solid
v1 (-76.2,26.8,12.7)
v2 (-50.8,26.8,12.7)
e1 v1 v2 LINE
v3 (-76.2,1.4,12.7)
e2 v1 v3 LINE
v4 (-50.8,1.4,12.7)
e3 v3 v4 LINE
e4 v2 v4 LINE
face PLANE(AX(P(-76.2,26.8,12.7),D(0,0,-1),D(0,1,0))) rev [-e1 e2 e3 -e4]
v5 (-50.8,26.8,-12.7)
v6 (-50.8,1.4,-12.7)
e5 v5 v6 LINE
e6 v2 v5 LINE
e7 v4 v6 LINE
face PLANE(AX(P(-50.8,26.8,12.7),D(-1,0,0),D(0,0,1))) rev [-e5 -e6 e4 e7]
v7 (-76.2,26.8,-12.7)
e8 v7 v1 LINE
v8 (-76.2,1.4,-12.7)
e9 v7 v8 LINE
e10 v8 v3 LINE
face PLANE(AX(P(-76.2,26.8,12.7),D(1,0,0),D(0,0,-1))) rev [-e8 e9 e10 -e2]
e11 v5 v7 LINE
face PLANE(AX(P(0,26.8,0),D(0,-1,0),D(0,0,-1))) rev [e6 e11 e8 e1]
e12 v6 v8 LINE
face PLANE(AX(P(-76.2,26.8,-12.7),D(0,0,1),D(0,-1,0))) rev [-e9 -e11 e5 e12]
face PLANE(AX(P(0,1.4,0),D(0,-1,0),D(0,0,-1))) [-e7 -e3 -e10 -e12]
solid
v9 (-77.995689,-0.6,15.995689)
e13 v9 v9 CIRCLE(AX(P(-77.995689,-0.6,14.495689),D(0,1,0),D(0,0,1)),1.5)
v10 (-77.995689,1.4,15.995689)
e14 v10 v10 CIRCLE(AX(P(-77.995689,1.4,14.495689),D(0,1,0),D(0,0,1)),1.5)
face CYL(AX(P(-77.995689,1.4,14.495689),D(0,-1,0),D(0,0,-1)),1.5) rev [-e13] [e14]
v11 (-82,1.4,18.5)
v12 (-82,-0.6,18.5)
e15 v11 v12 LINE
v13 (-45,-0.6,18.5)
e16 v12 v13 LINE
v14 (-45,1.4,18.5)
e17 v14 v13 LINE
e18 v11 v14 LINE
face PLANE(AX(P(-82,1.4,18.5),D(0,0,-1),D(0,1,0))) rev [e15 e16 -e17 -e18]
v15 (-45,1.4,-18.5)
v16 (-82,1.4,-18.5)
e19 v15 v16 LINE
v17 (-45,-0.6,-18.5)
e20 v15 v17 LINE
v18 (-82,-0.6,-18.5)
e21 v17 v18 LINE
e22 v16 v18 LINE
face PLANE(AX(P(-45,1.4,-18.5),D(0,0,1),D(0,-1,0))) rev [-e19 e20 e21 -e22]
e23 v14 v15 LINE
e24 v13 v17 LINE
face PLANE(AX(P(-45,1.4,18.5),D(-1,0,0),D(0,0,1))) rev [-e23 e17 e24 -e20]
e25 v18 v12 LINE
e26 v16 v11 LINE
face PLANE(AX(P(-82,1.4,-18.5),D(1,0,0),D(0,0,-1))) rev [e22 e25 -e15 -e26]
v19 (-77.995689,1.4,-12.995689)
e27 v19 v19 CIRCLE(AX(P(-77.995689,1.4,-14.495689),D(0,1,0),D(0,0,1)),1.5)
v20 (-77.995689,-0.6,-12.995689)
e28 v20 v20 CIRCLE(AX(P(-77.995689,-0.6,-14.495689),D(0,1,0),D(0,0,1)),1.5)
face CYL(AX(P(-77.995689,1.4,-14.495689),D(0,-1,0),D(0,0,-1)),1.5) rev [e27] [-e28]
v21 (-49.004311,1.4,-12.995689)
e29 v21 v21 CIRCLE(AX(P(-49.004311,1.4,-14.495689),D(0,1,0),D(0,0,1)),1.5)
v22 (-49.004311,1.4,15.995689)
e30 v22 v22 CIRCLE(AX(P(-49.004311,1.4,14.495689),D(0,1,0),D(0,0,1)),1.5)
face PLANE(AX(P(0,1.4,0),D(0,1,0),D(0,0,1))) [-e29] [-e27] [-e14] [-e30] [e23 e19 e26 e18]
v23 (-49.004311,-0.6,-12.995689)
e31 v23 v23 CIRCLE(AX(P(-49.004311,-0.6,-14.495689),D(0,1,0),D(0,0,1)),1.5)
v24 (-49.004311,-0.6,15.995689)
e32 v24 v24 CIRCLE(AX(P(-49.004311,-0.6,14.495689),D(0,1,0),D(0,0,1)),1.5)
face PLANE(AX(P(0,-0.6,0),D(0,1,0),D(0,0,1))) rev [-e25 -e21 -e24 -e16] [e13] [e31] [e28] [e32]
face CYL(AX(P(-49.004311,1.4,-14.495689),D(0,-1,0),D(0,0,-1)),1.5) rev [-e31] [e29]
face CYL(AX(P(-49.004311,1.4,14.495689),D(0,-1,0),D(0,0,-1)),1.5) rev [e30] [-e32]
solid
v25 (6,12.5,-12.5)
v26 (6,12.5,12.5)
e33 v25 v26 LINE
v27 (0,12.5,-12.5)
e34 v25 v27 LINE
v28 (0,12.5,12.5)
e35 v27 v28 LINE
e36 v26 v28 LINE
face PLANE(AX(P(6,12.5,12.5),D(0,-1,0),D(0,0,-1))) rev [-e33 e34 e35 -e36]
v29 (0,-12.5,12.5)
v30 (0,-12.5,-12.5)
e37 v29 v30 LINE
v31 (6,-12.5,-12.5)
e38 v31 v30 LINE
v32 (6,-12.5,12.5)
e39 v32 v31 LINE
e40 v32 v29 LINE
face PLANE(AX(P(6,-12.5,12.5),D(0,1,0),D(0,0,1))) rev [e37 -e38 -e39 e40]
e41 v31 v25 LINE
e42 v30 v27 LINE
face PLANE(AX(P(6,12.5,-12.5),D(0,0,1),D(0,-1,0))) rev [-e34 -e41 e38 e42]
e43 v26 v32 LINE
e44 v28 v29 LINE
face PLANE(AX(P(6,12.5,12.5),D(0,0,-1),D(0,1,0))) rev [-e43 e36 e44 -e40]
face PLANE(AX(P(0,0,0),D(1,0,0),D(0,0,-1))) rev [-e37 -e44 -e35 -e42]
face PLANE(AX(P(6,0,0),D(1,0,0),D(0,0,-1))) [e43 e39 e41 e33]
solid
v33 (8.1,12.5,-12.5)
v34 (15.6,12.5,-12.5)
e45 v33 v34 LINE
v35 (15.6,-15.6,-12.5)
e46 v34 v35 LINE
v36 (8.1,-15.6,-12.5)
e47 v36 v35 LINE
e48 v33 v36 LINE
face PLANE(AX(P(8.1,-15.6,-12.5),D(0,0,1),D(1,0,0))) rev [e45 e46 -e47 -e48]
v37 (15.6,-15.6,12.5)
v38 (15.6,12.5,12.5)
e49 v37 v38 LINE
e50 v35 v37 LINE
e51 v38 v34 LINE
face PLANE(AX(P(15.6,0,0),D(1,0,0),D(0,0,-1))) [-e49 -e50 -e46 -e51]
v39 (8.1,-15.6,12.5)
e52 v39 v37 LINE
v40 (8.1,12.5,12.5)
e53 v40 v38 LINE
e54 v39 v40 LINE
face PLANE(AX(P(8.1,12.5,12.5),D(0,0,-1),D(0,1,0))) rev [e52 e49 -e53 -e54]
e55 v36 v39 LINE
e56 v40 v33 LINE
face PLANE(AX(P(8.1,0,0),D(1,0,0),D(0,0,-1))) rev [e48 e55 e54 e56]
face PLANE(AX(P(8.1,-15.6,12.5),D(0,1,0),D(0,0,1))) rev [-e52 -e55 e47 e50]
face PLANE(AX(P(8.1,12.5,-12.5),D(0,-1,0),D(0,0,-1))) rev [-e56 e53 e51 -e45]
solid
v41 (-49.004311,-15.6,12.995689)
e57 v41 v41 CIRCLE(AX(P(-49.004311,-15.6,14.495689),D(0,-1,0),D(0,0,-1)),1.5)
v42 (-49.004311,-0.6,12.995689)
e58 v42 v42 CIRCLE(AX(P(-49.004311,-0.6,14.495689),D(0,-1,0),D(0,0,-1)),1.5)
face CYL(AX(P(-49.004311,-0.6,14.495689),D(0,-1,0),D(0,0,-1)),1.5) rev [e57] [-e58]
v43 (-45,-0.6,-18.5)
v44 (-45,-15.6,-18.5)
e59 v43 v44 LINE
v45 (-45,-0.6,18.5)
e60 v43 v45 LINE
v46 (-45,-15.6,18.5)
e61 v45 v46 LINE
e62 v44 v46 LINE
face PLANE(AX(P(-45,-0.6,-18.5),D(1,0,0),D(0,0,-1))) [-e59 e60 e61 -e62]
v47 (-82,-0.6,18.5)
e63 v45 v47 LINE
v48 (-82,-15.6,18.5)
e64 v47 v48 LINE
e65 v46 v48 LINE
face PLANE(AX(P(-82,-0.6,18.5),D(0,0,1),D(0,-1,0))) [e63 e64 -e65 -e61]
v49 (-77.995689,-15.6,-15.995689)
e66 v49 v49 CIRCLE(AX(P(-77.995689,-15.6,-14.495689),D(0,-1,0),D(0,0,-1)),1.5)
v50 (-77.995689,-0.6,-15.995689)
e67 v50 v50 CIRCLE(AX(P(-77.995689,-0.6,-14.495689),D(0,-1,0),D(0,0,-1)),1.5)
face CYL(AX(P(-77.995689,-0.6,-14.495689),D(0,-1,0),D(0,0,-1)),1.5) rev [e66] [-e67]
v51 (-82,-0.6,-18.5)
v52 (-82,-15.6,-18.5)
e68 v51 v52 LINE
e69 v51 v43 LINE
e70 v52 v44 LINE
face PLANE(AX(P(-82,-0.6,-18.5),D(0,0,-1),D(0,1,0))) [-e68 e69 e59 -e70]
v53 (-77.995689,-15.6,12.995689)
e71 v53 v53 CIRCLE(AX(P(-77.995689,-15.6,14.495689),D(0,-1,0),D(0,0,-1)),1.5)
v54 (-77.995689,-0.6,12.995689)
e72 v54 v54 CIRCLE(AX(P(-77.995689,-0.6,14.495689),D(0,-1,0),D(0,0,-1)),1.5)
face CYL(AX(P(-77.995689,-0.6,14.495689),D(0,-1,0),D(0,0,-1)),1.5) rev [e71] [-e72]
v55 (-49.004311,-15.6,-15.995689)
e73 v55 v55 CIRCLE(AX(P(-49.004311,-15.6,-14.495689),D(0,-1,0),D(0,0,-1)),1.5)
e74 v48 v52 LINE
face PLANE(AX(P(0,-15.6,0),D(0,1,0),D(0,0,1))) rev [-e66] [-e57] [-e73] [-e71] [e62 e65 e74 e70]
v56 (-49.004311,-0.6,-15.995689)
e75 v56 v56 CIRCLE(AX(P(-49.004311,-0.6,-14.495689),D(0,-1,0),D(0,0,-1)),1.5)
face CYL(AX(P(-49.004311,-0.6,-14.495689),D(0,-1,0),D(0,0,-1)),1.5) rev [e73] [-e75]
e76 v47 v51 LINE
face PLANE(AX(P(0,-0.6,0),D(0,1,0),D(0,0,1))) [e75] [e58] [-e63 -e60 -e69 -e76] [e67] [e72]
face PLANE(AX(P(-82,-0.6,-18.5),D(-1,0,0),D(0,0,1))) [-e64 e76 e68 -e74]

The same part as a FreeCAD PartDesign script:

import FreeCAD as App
import Part
import Sketcher

V = App.Vector

doc = App.newDocument("Part")
params = doc.addObject("Spreadsheet::Sheet", "Params")
for row, (alias, value) in enumerate([
    ("sketch1_width", "25 mm"),
    ("pad1_length", "6 mm"),
    ("sketch2_height", "25 mm"),
    ("sketch2_width", "28.1 mm"),
    ("pad2_length", "7.5 mm"),
    ("sketch3_diameter", "3 mm"),
    ("sketch3_width", "37 mm"),
    ("pad3_length", "15 mm"),
    ("sketch4_diameter", "3 mm"),
    ("sketch4_width", "37 mm"),
    ("pad4_length", "2 mm"),
    ("sketch5_width", "25.4 mm"),
    ("pad5_length", "25.4 mm"),
], start=1):
    params.set(f"A{row}", alias)
    params.set(f"B{row}", "=" + value)
    params.setAlias(f"B{row}", alias)

body = doc.addObject("PartDesign::Body", "Body")

# Sketch on YZ plane
sketch1 = body.newObject("Sketcher::SketchObject", "Sketch")
sketch1.AttachmentSupport = (doc.getObject("YZ_Plane"), [""])
sketch1.MapMode = "FlatFace"
sketch1.addGeometry(Part.LineSegment(V(12, 12, 0), V(-12, 12, 0)), False)
sketch1.addGeometry(Part.LineSegment(V(-12, 12, 0), V(-12, -12, 0)), False)
sketch1.addGeometry(Part.LineSegment(V(-12, -12, 0), V(12, -12, 0)), False)
sketch1.addGeometry(Part.LineSegment(V(12, -12, 0), V(12, 12, 0)), False)
sketch1.addConstraint(Sketcher.Constraint("Coincident", 0, 2, 1, 1))
sketch1.addConstraint(Sketcher.Constraint("Coincident", 1, 2, 2, 1))
sketch1.addConstraint(Sketcher.Constraint("Coincident", 2, 2, 3, 1))
sketch1.addConstraint(Sketcher.Constraint("Coincident", 3, 2, 0, 1))
sketch1.addConstraint(Sketcher.Constraint("Horizontal", 0))
sketch1.addConstraint(Sketcher.Constraint("Vertical", 1))
sketch1.addConstraint(Sketcher.Constraint("Horizontal", 2))
sketch1.addConstraint(Sketcher.Constraint("Vertical", 3))
sketch1.addConstraint(Sketcher.Constraint("Symmetric", 0, 2, 2, 2, -1, 1))
sketch1.addConstraint(Sketcher.Constraint("Equal", 2, 1))
sketch1.addConstraint(Sketcher.Constraint("DistanceX", 0, 2, 0, 1, 25.0))
sketch1.setExpression("Constraints[10]", "Params.sketch1_width")
pad1 = body.newObject("PartDesign::Pad", "Pad")
pad1.Profile = sketch1
pad1.setExpression("Length", "Params.pad1_length")
body2 = doc.addObject("PartDesign::Body", "Body001")

# Sketch on YZ plane
sketch2 = body2.newObject("Sketcher::SketchObject", "Sketch001")
sketch2.AttachmentSupport = (doc.getObject("YZ_Plane001"), [""])
sketch2.MapMode = "FlatFace"
sketch2.AttachmentOffset = App.Placement(V(0, 0, 15.6), App.Rotation())
sketch2.addGeometry(Part.LineSegment(V(12, -12, 0), V(-16, -12, 0)), False)
sketch2.addGeometry(Part.LineSegment(V(-16, -12, 0), V(-16, 12, 0)), False)
sketch2.addGeometry(Part.LineSegment(V(-16, 12, 0), V(12, 12, 0)), False)
sketch2.addGeometry(Part.LineSegment(V(12, 12, 0), V(12, -12, 0)), False)
sketch2.addConstraint(Sketcher.Constraint("Coincident", 0, 2, 1, 1))
sketch2.addConstraint(Sketcher.Constraint("Coincident", 1, 2, 2, 1))
sketch2.addConstraint(Sketcher.Constraint("Coincident", 2, 2, 3, 1))
sketch2.addConstraint(Sketcher.Constraint("Coincident", 3, 2, 0, 1))
sketch2.addConstraint(Sketcher.Constraint("Horizontal", 0))
sketch2.addConstraint(Sketcher.Constraint("Vertical", 1))
sketch2.addConstraint(Sketcher.Constraint("Horizontal", 2))
sketch2.addConstraint(Sketcher.Constraint("Vertical", 3))
sketch2.addConstraint(Sketcher.Constraint("DistanceY", 1, 1, 1, 2, 25.0))
sketch2.addConstraint(Sketcher.Constraint("DistanceX", 0, 2, 0, 1, 28.1))
sketch2.addConstraint(Sketcher.Constraint("DistanceX", 0, 2, -1, 1, 15.6))
sketch2.addConstraint(Sketcher.Constraint("DistanceY", 0, 2, -1, 1, 12.5))
sketch2.setExpression("Constraints[8]", "Params.sketch2_height")
sketch2.setExpression("Constraints[9]", "Params.sketch2_width")
pad2 = body2.newObject("PartDesign::Pad", "Pad001")
pad2.Profile = sketch2
pad2.setExpression("Length", "Params.pad2_length")
pad2.Reversed = True
body3 = doc.addObject("PartDesign::Body", "Body002")

# Sketch on XZ plane
sketch3 = body3.newObject("Sketcher::SketchObject", "Sketch002")
sketch3.AttachmentSupport = (doc.getObject("XZ_Plane002"), [""])
sketch3.MapMode = "FlatFace"
sketch3.AttachmentOffset = App.Placement(V(0, 0, 15.6), App.Rotation())
sketch3.addGeometry(Part.LineSegment(V(-82, 18.5, 0), V(-82, -18.5, 0)), False)
sketch3.addGeometry(Part.LineSegment(V(-82, -18.5, 0), V(-45, -18.5, 0)), False)
sketch3.addGeometry(Part.LineSegment(V(-45, -18.5, 0), V(-45, 18.5, 0)), False)
sketch3.addGeometry(Part.LineSegment(V(-45, 18.5, 0), V(-82, 18.5, 0)), False)
sketch3.addGeometry(Part.Circle(V(-78, -14.5, 0), V(0, 0, 1), 1.5), False)
sketch3.addGeometry(Part.Circle(V(-49, -14.5, 0), V(0, 0, 1), 1.5), False)
sketch3.addGeometry(Part.Circle(V(-78, 14.5, 0), V(0, 0, 1), 1.5), False)
sketch3.addGeometry(Part.Circle(V(-49, 14.5, 0), V(0, 0, 1), 1.5), False)
sketch3.addConstraint(Sketcher.Constraint("Coincident", 0, 2, 1, 1))
sketch3.addConstraint(Sketcher.Constraint("Coincident", 1, 2, 2, 1))
sketch3.addConstraint(Sketcher.Constraint("Coincident", 2, 2, 3, 1))
sketch3.addConstraint(Sketcher.Constraint("Coincident", 3, 2, 0, 1))
sketch3.addConstraint(Sketcher.Constraint("Vertical", 0))
sketch3.addConstraint(Sketcher.Constraint("Horizontal", 1))
sketch3.addConstraint(Sketcher.Constraint("Vertical", 2))
sketch3.addConstraint(Sketcher.Constraint("Horizontal", 3))
sketch3.addConstraint(Sketcher.Constraint("Equal", 4, 5))
sketch3.addConstraint(Sketcher.Constraint("Equal", 5, 6))
sketch3.addConstraint(Sketcher.Constraint("Equal", 6, 7))
sketch3.addConstraint(Sketcher.Constraint("Symmetric", 4, 3, 6, 3, -1))
sketch3.addConstraint(Sketcher.Constraint("Symmetric", 5, 3, 7, 3, -1))
sketch3.addConstraint(Sketcher.Constraint("Horizontal", 4, 3, 5, 3))
sketch3.addConstraint(Sketcher.Constraint("Equal", 3, 0))
sketch3.addConstraint(Sketcher.Constraint("Diameter", 4, 3.0))
sketch3.addConstraint(Sketcher.Constraint("DistanceX", 1, 1, 1, 2, 37.0))
sketch3.addConstraint(Sketcher.Constraint("DistanceX", 0, 2, -1, 1, 82.0))
sketch3.addConstraint(Sketcher.Constraint("DistanceY", 0, 2, -1, 1, 18.5))
sketch3.addConstraint(Sketcher.Constraint("DistanceX", 4, 3, -1, 1, 77.995689))
sketch3.addConstraint(Sketcher.Constraint("DistanceY", 4, 3, -1, 1, 14.495689))
sketch3.addConstraint(Sketcher.Constraint("DistanceX", 5, 3, -1, 1, 49.004311))
sketch3.setExpression("Constraints[15]", "Params.sketch3_diameter")
sketch3.setExpression("Constraints[16]", "Params.sketch3_width")
pad3 = body3.newObject("PartDesign::Pad", "Pad002")
pad3.Profile = sketch3
pad3.setExpression("Length", "Params.pad3_length")
pad3.Reversed = True
body4 = doc.addObject("PartDesign::Body", "Body003")

# Sketch on XZ plane
sketch4 = body4.newObject("Sketcher::SketchObject", "Sketch003")
sketch4.AttachmentSupport = (doc.getObject("XZ_Plane003"), [""])
sketch4.MapMode = "FlatFace"
sketch4.AttachmentOffset = App.Placement(V(0, 0, 0.6), App.Rotation())
sketch4.addGeometry(Part.LineSegment(V(-82, -18.5, 0), V(-82, 18.5, 0)), False)
sketch4.addGeometry(Part.LineSegment(V(-82, 18.5, 0), V(-45, 18.5, 0)), False)
sketch4.addGeometry(Part.LineSegment(V(-45, 18.5, 0), V(-45, -18.5, 0)), False)
sketch4.addGeometry(Part.LineSegment(V(-45, -18.5, 0), V(-82, -18.5, 0)), False)
sketch4.addGeometry(Part.Circle(V(-78, 14.5, 0), V(0, 0, 1), 1.5), False)
sketch4.addGeometry(Part.Circle(V(-49, 14.5, 0), V(0, 0, 1), 1.5), False)
sketch4.addGeometry(Part.Circle(V(-78, -14.5, 0), V(0, 0, 1), 1.5), False)
sketch4.addGeometry(Part.Circle(V(-49, -14.5, 0), V(0, 0, 1), 1.5), False)
sketch4.addConstraint(Sketcher.Constraint("Coincident", 0, 2, 1, 1))
sketch4.addConstraint(Sketcher.Constraint("Coincident", 1, 2, 2, 1))
sketch4.addConstraint(Sketcher.Constraint("Coincident", 2, 2, 3, 1))
sketch4.addConstraint(Sketcher.Constraint("Coincident", 3, 2, 0, 1))
sketch4.addConstraint(Sketcher.Constraint("Vertical", 0))
sketch4.addConstraint(Sketcher.Constraint("Horizontal", 1))
sketch4.addConstraint(Sketcher.Constraint("Vertical", 2))
sketch4.addConstraint(Sketcher.Constraint("Horizontal", 3))
sketch4.addConstraint(Sketcher.Constraint("Equal", 4, 5))
sketch4.addConstraint(Sketcher.Constraint("Equal", 5, 6))
sketch4.addConstraint(Sketcher.Constraint("Equal", 6, 7))
sketch4.addConstraint(Sketcher.Constraint("Symmetric", 4, 3, 6, 3, -1))
sketch4.addConstraint(Sketcher.Constraint("Symmetric", 5, 3, 7, 3, -1))
sketch4.addConstraint(Sketcher.Constraint("Horizontal", 4, 3, 5, 3))
sketch4.addConstraint(Sketcher.Constraint("Equal", 3, 0))
sketch4.addConstraint(Sketcher.Constraint("Diameter", 4, 3.0))
sketch4.addConstraint(Sketcher.Constraint("DistanceX", 1, 1, 1, 2, 37.0))
sketch4.addConstraint(Sketcher.Constraint("DistanceX", 0, 2, -1, 1, 82.0))
sketch4.addConstraint(Sketcher.Constraint("DistanceY", -1, 1, 0, 2, 18.5))
sketch4.addConstraint(Sketcher.Constraint("DistanceX", 4, 3, -1, 1, 77.995689))
sketch4.addConstraint(Sketcher.Constraint("DistanceY", -1, 1, 4, 3, 14.495689))
sketch4.addConstraint(Sketcher.Constraint("DistanceX", 5, 3, -1, 1, 49.004311))
sketch4.setExpression("Constraints[15]", "Params.sketch4_diameter")
sketch4.setExpression("Constraints[16]", "Params.sketch4_width")
pad4 = body4.newObject("PartDesign::Pad", "Pad003")
pad4.Profile = sketch4
pad4.setExpression("Length", "Params.pad4_length")
pad4.Reversed = True
body5 = doc.addObject("PartDesign::Body", "Body004")

# Sketch on XZ plane
sketch5 = body5.newObject("Sketcher::SketchObject", "Sketch004")
sketch5.AttachmentSupport = (doc.getObject("XZ_Plane004"), [""])
sketch5.MapMode = "FlatFace"
sketch5.AttachmentOffset = App.Placement(V(0, 0, -1.4), App.Rotation())
sketch5.addGeometry(Part.LineSegment(V(-76, -13, 0), V(-76, 13, 0)), False)
sketch5.addGeometry(Part.LineSegment(V(-76, 13, 0), V(-51, 13, 0)), False)
sketch5.addGeometry(Part.LineSegment(V(-51, 13, 0), V(-51, -13, 0)), False)
sketch5.addGeometry(Part.LineSegment(V(-51, -13, 0), V(-76, -13, 0)), False)
sketch5.addConstraint(Sketcher.Constraint("Coincident", 0, 2, 1, 1))
sketch5.addConstraint(Sketcher.Constraint("Coincident", 1, 2, 2, 1))
sketch5.addConstraint(Sketcher.Constraint("Coincident", 2, 2, 3, 1))
sketch5.addConstraint(Sketcher.Constraint("Coincident", 3, 2, 0, 1))
sketch5.addConstraint(Sketcher.Constraint("Vertical", 0))
sketch5.addConstraint(Sketcher.Constraint("Horizontal", 1))
sketch5.addConstraint(Sketcher.Constraint("Vertical", 2))
sketch5.addConstraint(Sketcher.Constraint("Horizontal", 3))
sketch5.addConstraint(Sketcher.Constraint("Equal", 3, 0))
sketch5.addConstraint(Sketcher.Constraint("DistanceX", 1, 1, 1, 2, 25.4))
sketch5.addConstraint(Sketcher.Constraint("DistanceX", 0, 2, -1, 1, 76.2))
sketch5.addConstraint(Sketcher.Constraint("DistanceY", -1, 1, 0, 2, 12.7))
sketch5.setExpression("Constraints[9]", "Params.sketch5_width")
pad5 = body5.newObject("PartDesign::Pad", "Pad004")
pad5.Profile = sketch5
pad5.setExpression("Length", "Params.pad5_length")
pad5.Reversed = True

doc.recompute()
